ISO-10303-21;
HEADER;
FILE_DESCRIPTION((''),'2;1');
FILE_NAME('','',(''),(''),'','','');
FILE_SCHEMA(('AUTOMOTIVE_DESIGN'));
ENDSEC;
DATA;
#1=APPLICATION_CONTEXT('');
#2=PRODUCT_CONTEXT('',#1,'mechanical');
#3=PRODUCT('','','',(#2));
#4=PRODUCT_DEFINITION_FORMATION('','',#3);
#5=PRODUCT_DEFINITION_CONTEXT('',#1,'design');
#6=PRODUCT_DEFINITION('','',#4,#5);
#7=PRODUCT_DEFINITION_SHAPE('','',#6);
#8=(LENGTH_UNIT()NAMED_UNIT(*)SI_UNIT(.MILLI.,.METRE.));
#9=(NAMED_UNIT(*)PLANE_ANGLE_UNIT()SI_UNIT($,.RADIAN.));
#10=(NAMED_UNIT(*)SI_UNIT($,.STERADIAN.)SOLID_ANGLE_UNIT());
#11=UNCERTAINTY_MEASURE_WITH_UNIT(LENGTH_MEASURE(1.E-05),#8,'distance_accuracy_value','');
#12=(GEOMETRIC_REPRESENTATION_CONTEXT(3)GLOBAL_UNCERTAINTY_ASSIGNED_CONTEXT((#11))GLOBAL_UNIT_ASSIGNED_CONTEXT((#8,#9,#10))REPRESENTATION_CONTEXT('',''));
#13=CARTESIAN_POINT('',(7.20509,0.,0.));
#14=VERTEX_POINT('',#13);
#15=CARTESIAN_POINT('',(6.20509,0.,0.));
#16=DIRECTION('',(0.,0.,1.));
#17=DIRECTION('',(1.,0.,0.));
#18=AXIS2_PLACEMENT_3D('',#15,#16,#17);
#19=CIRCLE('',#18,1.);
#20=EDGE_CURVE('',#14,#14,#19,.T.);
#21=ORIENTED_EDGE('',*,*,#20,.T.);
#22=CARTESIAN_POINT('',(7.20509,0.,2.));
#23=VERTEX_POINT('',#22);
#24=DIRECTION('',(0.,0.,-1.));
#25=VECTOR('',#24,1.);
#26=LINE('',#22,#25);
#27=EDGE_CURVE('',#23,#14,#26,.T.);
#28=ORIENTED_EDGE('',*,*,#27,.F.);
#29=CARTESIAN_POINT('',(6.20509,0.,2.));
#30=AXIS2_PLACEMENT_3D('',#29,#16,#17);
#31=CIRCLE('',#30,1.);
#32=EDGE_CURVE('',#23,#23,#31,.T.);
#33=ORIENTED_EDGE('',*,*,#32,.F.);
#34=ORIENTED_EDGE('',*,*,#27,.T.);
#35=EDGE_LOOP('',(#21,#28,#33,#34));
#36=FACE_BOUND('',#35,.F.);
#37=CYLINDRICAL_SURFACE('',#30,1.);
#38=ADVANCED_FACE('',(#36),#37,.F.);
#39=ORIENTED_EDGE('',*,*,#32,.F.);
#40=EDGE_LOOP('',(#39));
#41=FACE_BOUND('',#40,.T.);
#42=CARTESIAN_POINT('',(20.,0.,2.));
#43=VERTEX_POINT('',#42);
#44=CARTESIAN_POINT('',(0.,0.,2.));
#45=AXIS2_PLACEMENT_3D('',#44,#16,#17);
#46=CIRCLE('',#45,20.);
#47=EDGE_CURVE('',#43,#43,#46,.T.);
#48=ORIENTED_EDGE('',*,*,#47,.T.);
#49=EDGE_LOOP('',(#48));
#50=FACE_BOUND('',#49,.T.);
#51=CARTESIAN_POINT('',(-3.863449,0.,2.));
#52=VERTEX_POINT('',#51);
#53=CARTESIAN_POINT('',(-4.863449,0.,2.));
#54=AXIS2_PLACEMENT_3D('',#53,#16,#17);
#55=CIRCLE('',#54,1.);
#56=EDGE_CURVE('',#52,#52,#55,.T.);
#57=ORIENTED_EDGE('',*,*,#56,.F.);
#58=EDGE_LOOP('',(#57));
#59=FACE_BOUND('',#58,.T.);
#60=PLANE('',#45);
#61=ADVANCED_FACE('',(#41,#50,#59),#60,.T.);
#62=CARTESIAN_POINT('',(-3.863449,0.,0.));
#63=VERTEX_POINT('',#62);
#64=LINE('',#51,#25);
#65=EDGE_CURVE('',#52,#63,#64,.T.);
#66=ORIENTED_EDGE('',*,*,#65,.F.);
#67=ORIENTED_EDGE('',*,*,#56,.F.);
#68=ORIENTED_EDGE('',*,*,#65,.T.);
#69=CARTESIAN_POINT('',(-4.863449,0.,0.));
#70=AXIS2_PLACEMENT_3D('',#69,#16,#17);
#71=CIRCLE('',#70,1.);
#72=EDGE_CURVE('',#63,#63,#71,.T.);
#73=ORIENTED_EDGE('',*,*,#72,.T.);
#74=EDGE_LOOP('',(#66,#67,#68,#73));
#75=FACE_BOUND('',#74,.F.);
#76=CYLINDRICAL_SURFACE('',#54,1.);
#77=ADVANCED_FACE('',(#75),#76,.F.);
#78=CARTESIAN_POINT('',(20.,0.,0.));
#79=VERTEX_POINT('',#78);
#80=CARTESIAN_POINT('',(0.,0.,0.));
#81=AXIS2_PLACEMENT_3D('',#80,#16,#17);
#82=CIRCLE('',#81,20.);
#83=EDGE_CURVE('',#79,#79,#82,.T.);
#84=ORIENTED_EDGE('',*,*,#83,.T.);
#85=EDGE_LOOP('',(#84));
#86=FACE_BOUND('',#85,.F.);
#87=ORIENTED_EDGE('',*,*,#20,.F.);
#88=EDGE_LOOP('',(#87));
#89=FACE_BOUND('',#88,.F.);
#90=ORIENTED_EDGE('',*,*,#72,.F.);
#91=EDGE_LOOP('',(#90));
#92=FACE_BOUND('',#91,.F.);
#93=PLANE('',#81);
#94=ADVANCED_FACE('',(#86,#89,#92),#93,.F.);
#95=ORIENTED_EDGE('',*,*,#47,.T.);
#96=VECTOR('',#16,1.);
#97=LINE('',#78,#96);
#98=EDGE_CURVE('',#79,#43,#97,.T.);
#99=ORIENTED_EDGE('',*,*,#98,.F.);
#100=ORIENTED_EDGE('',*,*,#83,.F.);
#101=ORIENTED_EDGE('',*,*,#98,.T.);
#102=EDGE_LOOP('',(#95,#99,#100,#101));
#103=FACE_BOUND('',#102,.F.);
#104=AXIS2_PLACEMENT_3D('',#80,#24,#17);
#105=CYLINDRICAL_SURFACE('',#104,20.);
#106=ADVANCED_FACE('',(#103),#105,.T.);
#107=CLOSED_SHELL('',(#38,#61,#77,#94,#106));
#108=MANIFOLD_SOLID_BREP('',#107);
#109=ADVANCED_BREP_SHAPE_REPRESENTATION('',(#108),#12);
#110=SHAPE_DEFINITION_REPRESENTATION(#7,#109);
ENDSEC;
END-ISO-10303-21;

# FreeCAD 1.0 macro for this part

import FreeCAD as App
import Part
import Sketcher

V = App.Vector
Q = App.Units.Quantity

doc = App.newDocument("Part")
body = doc.addObject("PartDesign::Body", "Body")

# Sketch on XY plane
sketch1 = body.newObject("Sketcher::SketchObject", "Sketch")
sketch1.AttachmentSupport = (doc.getObject("XY_Plane"), [""])
sketch1.MapMode = "FlatFace"
sketch1.addGeometry(Part.Circle(V(0, 0, 0), V(0, 0, 1), 20), False)
sketch1.addConstraint([
    Sketcher.Constraint("Coincident", 0, 3, -1, 1),
    Sketcher.Constraint("Diameter", 0, Q("40 mm")),
])
pad1 = body.newObject("PartDesign::Pad", "Pad")
pad1.Profile = sketch1
pad1.Length = 2

# Sketch on XY plane
sketch2 = body.newObject("Sketcher::SketchObject", "Sketch001")
sketch2.AttachmentSupport = (doc.getObject("XY_Plane"), [""])
sketch2.MapMode = "FlatFace"
sketch2.AttachmentOffset = App.Placement(V(0, 0, 2), App.Rotation())
sketch2.addGeometry([
    Part.Circle(V(-4.863449, 0, 0), V(0, 0, 1), 1),
    Part.Circle(V(6.20509, 0, 0), V(0, 0, 1), 1),
], False)
sketch2.addConstraint([
    Sketcher.Constraint("Equal", 0, 1),
    Sketcher.Constraint("PointOnObject", 0, 3, -1),
    Sketcher.Constraint("PointOnObject", 1, 3, -1),
    Sketcher.Constraint("Diameter", 0, Q("2 mm")),
    Sketcher.Constraint("DistanceX", 0, 3, -1, 1, Q("4.863449 mm")),
    Sketcher.Constraint("DistanceX", -1, 1, 1, 3, Q("6.20509 mm")),
])
pocket1 = body.newObject("PartDesign::Pocket", "Pocket")
pocket1.Profile = sketch2
pocket1.Length = 25

doc.recompute()
